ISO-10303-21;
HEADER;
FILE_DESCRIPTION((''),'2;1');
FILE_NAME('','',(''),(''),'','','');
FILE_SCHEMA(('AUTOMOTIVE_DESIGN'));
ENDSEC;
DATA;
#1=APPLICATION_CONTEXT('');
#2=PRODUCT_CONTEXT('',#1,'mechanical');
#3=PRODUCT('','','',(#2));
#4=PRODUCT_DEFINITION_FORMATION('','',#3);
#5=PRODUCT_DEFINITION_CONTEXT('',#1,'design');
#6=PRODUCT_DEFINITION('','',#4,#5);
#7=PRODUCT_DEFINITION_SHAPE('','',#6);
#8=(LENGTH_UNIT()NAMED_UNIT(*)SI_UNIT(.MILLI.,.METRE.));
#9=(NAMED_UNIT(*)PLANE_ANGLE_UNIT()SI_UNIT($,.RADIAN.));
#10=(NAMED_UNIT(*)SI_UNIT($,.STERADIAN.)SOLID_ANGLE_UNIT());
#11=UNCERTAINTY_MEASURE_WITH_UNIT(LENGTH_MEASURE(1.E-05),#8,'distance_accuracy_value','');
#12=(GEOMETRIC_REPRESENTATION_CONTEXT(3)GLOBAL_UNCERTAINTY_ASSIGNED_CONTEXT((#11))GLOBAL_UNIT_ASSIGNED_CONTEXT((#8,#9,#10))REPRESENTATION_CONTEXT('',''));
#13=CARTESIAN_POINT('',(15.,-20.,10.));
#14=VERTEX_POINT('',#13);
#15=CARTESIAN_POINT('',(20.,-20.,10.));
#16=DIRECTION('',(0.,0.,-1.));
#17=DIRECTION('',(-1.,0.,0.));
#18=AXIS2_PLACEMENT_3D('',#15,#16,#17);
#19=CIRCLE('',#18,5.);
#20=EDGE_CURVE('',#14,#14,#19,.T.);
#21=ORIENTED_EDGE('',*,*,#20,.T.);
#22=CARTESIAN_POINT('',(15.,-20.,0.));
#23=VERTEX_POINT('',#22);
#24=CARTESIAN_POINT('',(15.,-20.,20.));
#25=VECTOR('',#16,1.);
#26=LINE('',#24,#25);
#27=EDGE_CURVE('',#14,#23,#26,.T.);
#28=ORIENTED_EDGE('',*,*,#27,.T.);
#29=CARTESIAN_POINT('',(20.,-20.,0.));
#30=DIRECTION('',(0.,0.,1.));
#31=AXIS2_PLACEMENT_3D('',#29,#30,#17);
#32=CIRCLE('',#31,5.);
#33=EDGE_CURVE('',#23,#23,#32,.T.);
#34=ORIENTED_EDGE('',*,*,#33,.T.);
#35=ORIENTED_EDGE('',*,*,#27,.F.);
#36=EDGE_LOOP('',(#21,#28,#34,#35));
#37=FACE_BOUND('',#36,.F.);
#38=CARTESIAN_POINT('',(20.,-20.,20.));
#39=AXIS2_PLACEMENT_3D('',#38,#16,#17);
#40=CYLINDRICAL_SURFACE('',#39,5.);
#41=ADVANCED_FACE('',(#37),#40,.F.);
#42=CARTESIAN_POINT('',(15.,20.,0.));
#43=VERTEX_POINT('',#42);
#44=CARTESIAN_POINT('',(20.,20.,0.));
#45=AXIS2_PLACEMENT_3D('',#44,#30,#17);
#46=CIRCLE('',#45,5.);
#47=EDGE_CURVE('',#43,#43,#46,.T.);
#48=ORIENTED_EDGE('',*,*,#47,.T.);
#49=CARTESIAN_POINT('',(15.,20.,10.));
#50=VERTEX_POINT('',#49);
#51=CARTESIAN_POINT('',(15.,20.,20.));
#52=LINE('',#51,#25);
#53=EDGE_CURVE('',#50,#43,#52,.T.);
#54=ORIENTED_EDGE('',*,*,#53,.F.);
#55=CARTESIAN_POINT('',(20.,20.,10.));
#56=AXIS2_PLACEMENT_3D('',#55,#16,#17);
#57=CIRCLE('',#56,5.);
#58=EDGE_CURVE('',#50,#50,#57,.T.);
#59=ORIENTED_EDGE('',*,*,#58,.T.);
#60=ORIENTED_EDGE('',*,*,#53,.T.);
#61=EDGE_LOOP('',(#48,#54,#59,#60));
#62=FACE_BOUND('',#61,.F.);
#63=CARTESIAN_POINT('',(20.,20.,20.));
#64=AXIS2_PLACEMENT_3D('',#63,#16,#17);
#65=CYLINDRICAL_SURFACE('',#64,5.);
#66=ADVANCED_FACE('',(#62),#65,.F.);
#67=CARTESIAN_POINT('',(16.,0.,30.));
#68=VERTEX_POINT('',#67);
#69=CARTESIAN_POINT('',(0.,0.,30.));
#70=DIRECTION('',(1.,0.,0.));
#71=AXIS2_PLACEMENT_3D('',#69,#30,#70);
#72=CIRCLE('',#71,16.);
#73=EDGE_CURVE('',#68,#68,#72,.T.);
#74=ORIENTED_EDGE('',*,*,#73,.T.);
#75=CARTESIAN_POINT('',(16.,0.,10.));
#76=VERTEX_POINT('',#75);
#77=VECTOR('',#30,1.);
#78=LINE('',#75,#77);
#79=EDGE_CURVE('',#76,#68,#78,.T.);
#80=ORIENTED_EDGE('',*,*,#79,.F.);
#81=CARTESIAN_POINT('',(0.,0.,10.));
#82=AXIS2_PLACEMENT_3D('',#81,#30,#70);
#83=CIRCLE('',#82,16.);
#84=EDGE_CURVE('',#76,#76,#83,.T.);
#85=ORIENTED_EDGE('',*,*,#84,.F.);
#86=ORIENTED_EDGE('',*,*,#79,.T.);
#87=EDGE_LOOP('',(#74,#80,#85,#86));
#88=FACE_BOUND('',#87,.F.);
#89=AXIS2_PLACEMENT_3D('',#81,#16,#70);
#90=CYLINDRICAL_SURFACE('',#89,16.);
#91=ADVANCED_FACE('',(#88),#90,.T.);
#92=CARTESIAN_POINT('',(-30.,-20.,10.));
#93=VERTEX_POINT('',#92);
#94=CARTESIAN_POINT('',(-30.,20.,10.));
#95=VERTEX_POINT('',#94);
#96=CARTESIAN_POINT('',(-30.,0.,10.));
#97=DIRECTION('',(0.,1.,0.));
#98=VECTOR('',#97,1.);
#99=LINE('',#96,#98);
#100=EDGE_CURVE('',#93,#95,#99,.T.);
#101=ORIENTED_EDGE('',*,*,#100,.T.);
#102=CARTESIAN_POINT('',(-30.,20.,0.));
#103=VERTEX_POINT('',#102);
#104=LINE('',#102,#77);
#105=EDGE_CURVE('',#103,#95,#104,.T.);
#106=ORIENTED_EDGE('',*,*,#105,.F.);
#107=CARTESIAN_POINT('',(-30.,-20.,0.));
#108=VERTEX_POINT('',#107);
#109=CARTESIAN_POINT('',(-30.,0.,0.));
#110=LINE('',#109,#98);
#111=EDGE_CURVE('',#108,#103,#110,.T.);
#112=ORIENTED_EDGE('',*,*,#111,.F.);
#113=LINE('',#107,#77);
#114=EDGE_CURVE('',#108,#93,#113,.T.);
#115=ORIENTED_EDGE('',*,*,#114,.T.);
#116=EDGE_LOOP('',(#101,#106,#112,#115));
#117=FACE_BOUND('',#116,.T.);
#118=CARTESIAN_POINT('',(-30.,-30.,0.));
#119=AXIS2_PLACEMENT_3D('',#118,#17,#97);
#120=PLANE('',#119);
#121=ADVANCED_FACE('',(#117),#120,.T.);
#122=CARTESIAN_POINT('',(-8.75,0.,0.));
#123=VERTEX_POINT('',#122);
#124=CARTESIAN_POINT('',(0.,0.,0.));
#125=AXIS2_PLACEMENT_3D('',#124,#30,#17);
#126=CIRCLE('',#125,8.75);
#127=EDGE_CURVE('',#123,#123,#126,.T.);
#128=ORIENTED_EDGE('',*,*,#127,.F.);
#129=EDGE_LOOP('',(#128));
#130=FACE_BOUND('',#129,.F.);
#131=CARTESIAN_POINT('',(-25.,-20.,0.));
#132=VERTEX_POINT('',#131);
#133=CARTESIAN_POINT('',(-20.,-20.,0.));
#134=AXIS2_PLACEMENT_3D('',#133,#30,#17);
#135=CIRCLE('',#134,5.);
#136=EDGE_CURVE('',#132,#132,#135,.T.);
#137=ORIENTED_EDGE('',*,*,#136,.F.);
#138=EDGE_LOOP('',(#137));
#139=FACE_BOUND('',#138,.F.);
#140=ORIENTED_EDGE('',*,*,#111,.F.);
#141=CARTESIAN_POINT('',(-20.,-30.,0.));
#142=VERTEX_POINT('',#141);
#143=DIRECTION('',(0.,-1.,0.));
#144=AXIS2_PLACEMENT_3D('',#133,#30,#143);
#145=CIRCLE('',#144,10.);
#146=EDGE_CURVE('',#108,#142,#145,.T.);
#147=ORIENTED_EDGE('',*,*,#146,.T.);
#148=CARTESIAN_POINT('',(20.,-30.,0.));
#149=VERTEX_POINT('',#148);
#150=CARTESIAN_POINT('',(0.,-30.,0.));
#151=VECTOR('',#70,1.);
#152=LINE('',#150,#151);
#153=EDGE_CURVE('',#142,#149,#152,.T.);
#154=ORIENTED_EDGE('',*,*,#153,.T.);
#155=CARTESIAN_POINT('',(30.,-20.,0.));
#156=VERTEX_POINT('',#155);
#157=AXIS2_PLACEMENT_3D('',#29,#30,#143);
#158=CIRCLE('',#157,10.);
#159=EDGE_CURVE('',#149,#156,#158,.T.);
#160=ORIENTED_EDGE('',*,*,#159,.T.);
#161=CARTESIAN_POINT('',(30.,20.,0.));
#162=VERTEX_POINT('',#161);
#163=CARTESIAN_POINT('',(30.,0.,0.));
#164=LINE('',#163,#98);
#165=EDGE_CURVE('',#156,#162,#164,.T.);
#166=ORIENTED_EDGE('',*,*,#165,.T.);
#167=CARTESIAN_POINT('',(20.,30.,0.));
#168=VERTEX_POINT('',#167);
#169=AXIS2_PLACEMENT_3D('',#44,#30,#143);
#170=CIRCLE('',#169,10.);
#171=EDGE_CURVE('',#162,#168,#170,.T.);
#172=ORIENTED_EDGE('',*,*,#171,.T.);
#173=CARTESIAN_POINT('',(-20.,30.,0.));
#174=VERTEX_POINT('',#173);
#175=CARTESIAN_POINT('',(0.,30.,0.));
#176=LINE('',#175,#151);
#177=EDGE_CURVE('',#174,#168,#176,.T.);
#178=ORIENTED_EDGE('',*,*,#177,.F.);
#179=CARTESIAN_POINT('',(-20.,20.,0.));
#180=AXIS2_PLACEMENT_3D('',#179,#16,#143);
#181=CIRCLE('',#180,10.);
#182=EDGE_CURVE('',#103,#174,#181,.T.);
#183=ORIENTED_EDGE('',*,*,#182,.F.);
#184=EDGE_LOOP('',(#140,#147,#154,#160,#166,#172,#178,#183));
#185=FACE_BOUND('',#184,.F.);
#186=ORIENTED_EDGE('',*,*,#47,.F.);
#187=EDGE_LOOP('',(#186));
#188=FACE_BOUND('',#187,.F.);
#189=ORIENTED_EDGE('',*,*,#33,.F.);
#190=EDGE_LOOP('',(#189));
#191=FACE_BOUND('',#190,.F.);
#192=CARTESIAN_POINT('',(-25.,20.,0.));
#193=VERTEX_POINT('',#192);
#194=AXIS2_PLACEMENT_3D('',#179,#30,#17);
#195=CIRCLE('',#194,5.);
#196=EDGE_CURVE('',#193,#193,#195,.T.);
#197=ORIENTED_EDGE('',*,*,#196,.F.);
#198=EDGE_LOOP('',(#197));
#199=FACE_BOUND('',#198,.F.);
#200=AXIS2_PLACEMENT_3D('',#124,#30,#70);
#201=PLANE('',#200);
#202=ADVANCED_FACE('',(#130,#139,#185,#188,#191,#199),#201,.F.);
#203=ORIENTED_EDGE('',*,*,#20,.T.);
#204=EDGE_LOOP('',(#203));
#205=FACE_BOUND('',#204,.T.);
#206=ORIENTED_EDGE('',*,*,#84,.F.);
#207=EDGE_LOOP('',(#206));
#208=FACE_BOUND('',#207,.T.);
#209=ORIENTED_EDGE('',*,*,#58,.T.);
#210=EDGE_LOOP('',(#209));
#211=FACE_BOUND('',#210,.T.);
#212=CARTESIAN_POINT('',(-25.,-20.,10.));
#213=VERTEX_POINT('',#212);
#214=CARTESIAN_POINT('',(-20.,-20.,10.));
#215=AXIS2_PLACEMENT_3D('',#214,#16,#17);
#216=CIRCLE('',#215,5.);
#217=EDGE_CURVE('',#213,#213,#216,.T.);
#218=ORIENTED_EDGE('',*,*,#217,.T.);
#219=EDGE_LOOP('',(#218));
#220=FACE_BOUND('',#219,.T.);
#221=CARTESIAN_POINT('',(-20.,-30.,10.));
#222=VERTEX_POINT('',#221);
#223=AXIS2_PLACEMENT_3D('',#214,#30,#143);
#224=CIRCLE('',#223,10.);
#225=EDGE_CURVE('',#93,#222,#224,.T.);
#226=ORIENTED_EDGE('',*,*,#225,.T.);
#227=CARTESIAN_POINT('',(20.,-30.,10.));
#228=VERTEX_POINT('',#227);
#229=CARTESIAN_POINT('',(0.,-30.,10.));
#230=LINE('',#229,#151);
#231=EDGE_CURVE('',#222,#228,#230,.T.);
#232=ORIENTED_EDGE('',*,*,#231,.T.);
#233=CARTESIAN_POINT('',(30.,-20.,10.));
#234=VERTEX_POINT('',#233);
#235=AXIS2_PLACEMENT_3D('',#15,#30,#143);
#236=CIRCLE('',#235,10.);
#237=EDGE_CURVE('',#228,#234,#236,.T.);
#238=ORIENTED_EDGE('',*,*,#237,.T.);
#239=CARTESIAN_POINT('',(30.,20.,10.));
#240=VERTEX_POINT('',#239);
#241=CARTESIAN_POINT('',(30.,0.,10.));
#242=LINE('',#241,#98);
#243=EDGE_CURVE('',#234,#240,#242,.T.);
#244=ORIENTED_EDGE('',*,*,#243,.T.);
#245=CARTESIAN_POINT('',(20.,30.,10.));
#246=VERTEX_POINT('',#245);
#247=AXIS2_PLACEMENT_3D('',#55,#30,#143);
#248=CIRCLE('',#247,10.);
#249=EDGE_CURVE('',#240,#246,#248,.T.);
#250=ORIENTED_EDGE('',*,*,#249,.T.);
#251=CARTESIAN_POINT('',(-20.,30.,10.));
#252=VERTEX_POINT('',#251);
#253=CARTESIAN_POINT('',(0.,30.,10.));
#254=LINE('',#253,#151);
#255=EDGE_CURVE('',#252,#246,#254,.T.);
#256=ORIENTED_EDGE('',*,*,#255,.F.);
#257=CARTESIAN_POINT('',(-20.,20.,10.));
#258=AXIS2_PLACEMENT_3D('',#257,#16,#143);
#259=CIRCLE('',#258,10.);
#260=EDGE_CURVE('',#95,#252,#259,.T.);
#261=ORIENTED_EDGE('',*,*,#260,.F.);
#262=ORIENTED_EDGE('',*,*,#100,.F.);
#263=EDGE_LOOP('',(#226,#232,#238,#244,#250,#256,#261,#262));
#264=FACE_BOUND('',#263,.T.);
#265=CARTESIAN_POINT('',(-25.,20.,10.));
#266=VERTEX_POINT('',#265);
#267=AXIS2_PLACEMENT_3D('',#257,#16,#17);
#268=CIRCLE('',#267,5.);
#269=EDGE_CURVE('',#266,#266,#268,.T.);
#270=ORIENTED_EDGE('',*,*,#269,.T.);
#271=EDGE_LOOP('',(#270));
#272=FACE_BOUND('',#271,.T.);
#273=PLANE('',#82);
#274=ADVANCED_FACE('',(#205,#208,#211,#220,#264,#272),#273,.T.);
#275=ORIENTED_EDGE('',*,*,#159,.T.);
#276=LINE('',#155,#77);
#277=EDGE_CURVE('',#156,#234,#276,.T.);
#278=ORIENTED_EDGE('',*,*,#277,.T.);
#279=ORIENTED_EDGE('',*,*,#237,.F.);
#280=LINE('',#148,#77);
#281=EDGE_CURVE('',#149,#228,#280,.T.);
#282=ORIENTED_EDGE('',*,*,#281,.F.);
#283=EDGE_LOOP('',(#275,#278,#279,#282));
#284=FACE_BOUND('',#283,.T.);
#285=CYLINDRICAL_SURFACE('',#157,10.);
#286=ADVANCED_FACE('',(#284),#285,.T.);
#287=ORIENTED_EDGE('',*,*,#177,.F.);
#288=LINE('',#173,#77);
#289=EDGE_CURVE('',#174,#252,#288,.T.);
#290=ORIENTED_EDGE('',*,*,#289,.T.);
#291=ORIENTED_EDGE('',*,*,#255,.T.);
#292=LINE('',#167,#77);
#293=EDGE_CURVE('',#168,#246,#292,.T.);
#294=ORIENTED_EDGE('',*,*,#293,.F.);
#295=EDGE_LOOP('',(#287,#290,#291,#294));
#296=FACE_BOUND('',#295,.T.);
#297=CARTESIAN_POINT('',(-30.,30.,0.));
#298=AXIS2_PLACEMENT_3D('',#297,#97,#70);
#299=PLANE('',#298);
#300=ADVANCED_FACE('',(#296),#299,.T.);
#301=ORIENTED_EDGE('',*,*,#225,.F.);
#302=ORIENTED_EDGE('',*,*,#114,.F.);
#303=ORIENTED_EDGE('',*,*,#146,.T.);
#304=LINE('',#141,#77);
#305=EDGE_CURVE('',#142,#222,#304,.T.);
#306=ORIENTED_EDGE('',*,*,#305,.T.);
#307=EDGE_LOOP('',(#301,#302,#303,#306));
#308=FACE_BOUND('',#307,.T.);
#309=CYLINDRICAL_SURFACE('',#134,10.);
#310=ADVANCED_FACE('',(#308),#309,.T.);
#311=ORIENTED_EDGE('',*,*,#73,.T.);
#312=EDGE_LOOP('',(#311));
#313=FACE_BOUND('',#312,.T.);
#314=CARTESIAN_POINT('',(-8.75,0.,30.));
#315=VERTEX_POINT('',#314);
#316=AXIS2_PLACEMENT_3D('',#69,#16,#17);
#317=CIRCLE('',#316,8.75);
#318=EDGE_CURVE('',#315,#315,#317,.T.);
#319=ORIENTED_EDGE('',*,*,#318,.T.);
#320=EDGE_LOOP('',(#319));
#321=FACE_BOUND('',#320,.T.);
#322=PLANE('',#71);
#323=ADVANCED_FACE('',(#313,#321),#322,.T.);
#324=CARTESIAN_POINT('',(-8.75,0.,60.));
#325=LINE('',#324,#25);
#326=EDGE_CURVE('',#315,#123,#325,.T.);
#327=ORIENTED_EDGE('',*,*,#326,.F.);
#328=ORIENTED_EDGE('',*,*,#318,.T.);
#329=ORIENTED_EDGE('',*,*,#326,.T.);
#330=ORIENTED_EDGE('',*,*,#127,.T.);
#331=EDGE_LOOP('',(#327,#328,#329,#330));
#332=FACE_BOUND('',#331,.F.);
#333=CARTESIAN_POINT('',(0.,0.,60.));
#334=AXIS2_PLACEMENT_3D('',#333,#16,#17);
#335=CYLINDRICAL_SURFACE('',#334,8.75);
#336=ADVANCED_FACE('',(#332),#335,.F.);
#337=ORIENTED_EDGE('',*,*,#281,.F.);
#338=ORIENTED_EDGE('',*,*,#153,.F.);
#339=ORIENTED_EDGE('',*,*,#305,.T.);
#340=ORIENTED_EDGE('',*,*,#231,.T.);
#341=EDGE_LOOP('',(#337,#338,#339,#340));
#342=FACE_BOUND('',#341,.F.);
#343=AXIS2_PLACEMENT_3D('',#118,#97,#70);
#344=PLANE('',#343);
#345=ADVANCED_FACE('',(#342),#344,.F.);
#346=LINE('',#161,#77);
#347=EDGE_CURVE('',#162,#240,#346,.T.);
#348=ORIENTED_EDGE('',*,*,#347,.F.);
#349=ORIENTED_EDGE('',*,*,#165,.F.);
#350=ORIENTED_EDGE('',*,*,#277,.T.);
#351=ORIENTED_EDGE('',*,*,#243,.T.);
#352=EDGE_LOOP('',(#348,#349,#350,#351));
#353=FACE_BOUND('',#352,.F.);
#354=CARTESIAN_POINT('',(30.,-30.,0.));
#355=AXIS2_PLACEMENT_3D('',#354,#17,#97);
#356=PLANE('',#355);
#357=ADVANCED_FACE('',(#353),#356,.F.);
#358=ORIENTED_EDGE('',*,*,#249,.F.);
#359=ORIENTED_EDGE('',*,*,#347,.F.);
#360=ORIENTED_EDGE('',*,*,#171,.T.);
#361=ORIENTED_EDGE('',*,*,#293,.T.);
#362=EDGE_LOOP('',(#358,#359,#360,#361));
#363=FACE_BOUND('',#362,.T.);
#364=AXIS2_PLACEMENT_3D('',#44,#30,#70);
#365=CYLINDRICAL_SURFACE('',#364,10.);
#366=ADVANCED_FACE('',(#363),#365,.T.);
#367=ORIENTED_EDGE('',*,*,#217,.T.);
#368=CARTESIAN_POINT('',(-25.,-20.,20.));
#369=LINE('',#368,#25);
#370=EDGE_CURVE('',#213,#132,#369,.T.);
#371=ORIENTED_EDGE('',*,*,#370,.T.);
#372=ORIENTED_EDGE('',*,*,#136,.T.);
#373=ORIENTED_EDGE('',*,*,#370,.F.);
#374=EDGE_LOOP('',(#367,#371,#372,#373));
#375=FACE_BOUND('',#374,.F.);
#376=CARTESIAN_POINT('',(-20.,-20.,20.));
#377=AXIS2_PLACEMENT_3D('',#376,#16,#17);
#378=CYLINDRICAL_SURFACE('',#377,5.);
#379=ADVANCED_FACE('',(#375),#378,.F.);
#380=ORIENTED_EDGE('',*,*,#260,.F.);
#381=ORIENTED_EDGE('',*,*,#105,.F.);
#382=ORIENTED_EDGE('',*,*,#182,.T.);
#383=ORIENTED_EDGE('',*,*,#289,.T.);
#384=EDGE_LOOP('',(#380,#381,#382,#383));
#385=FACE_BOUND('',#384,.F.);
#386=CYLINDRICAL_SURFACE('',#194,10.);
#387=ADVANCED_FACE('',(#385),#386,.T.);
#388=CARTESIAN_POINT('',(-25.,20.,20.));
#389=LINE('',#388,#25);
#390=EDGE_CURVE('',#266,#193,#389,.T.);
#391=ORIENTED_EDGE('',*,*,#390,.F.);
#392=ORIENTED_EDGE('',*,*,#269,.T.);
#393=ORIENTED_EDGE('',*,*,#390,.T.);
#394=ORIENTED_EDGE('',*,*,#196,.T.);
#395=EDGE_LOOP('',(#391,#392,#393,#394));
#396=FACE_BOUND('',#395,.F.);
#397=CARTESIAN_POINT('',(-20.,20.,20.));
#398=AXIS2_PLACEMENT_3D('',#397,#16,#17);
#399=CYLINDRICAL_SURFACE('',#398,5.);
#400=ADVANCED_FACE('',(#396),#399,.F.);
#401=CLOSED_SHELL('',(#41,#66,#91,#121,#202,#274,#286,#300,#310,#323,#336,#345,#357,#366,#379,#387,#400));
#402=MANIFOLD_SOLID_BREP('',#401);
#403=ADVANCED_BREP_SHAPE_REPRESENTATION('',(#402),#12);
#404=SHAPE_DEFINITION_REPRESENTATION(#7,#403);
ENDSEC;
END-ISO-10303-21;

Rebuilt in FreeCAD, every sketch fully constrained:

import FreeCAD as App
import Part
import Sketcher


def edges_at(feature, points):
    """Names of the edges that pass closest to the given points."""
    edges = feature.Shape.Edges
    near = lambda p: min(range(len(edges)), key=lambda i: edges[i].distToShape(Part.Vertex(*p))[0])
    return sorted({f"Edge{near(p) + 1}" for p in points})


def add_polygon(sketch, points):
    """Adds a closed chain of lines whose ends are joined by coincident constraints."""
    first, n = sketch.GeometryCount, len(points)
    for a, b in zip(points, points[1:] + points[:1]):
        sketch.addGeometry(Part.LineSegment(App.Vector(*a, 0), App.Vector(*b, 0)), False)
    for i in range(n):
        sketch.addConstraint(Sketcher.Constraint("Coincident", first + i, 2, first + (i + 1) % n, 1))

doc = App.newDocument("Part")
body = doc.addObject("PartDesign::Body", "Body")

# Sketch on XY plane
sketch1 = body.newObject("Sketcher::SketchObject", "Sketch")
sketch1.AttachmentSupport = (doc.getObject("XY_Plane"), [""])
sketch1.MapMode = "FlatFace"
add_polygon(sketch1, [(-30, 30), (-30, -30), (30, -30), (30, 30)])  # lines 0-3
sketch1.addConstraint(Sketcher.Constraint("Vertical", 0))
sketch1.addConstraint(Sketcher.Constraint("Horizontal", 1))
sketch1.addConstraint(Sketcher.Constraint("Vertical", 2))
sketch1.addConstraint(Sketcher.Constraint("Horizontal", 3))
sketch1.addConstraint(Sketcher.Constraint("Symmetric", 0, 2, 2, 2, -1, 1))
sketch1.addConstraint(Sketcher.Constraint("Equal", 3, 0))
sketch1.addConstraint(Sketcher.Constraint("DistanceX", 1, 1, 1, 2, 60.0))
pad1 = body.newObject("PartDesign::Pad", "Pad")
pad1.Profile = sketch1
pad1.Length = 10
doc.recompute()

fillet = body.newObject("PartDesign::Fillet", "Fillet")
fillet.Base = (pad1, edges_at(pad1, [
    (-30, 30, 5),
    (-30, -30, 5),
    (30, -30, 5),
    (30, 30, 5),
]))
fillet.Radius = 10

# Sketch on XY plane
sketch2 = body.newObject("Sketcher::SketchObject", "Sketch001")
sketch2.AttachmentSupport = (doc.getObject("XY_Plane"), [""])
sketch2.MapMode = "FlatFace"
sketch2.AttachmentOffset = App.Placement(App.Vector(0, 0, 10), App.Rotation())
sketch2.addGeometry(Part.Circle(App.Vector(-20, 20, 0), App.Vector(0, 0, 1), 5), False)
sketch2.addGeometry(Part.Circle(App.Vector(20, 20, 0), App.Vector(0, 0, 1), 5), False)
sketch2.addGeometry(Part.Circle(App.Vector(20, -20, 0), App.Vector(0, 0, 1), 5), False)
sketch2.addGeometry(Part.Circle(App.Vector(-20, -20, 0), App.Vector(0, 0, 1), 5), False)
sketch2.addConstraint(Sketcher.Constraint("Equal", 0, 1))
sketch2.addConstraint(Sketcher.Constraint("Equal", 1, 2))
sketch2.addConstraint(Sketcher.Constraint("Equal", 2, 3))
sketch2.addConstraint(Sketcher.Constraint("Symmetric", 0, 3, 2, 3, -1, 1))
sketch2.addConstraint(Sketcher.Constraint("Symmetric", 1, 3, 3, 3, -1, 1))
sketch2.addConstraint(Sketcher.Constraint("Symmetric", 0, 3, 1, 3, -2))
sketch2.addConstraint(Sketcher.Constraint("Diameter", 0, 10.0))
sketch2.addConstraint(Sketcher.Constraint("DistanceX", 0, 3, -1, 1, 20.0))
sketch2.addConstraint(Sketcher.Constraint("DistanceY", -1, 1, 0, 3, 20.0))
doc.recompute()
hole = body.newObject("PartDesign::Hole", "Hole")
hole.Profile = sketch2
hole.ThreadType = "None"
hole.Diameter = 10
hole.DepthType = "Dimension"
hole.Depth = 10
hole.DrillPoint = "Angled"
hole.DrillPointAngle = 118

# Sketch on XY plane
sketch3 = body.newObject("Sketcher::SketchObject", "Sketch002")
sketch3.AttachmentSupport = (doc.getObject("XY_Plane"), [""])
sketch3.MapMode = "FlatFace"
sketch3.AttachmentOffset = App.Placement(App.Vector(0, 0, 10), App.Rotation())
sketch3.addGeometry(Part.Circle(App.Vector(0, 0, 0), App.Vector(0, 0, 1), 16), False)
sketch3.addConstraint(Sketcher.Constraint("Coincident", 0, 3, -1, 1))
sketch3.addConstraint(Sketcher.Constraint("Diameter", 0, 32.0))
pad2 = body.newObject("PartDesign::Pad", "Pad001")
pad2.Profile = sketch3
pad2.Length = 20

# Sketch on XY plane
sketch4 = body.newObject("Sketcher::SketchObject", "Sketch003")
sketch4.AttachmentSupport = (doc.getObject("XY_Plane"), [""])
sketch4.MapMode = "FlatFace"
sketch4.AttachmentOffset = App.Placement(App.Vector(0, 0, 30), App.Rotation())
sketch4.addGeometry(Part.Circle(App.Vector(0, 0, 0), App.Vector(0, 0, 1), 9), False)
sketch4.addConstraint(Sketcher.Constraint("Coincident", 0, 3, -1, 1))
sketch4.addConstraint(Sketcher.Constraint("Diameter", 0, 17.5))
doc.recompute()
hole2 = body.newObject("PartDesign::Hole", "Hole001")
hole2.Profile = sketch4
hole2.ThreadType = "None"
hole2.Diameter = 17.5
hole2.DepthType = "Dimension"
hole2.Depth = 30
hole2.DrillPoint = "Angled"
hole2.DrillPointAngle = 118

doc.recompute()
